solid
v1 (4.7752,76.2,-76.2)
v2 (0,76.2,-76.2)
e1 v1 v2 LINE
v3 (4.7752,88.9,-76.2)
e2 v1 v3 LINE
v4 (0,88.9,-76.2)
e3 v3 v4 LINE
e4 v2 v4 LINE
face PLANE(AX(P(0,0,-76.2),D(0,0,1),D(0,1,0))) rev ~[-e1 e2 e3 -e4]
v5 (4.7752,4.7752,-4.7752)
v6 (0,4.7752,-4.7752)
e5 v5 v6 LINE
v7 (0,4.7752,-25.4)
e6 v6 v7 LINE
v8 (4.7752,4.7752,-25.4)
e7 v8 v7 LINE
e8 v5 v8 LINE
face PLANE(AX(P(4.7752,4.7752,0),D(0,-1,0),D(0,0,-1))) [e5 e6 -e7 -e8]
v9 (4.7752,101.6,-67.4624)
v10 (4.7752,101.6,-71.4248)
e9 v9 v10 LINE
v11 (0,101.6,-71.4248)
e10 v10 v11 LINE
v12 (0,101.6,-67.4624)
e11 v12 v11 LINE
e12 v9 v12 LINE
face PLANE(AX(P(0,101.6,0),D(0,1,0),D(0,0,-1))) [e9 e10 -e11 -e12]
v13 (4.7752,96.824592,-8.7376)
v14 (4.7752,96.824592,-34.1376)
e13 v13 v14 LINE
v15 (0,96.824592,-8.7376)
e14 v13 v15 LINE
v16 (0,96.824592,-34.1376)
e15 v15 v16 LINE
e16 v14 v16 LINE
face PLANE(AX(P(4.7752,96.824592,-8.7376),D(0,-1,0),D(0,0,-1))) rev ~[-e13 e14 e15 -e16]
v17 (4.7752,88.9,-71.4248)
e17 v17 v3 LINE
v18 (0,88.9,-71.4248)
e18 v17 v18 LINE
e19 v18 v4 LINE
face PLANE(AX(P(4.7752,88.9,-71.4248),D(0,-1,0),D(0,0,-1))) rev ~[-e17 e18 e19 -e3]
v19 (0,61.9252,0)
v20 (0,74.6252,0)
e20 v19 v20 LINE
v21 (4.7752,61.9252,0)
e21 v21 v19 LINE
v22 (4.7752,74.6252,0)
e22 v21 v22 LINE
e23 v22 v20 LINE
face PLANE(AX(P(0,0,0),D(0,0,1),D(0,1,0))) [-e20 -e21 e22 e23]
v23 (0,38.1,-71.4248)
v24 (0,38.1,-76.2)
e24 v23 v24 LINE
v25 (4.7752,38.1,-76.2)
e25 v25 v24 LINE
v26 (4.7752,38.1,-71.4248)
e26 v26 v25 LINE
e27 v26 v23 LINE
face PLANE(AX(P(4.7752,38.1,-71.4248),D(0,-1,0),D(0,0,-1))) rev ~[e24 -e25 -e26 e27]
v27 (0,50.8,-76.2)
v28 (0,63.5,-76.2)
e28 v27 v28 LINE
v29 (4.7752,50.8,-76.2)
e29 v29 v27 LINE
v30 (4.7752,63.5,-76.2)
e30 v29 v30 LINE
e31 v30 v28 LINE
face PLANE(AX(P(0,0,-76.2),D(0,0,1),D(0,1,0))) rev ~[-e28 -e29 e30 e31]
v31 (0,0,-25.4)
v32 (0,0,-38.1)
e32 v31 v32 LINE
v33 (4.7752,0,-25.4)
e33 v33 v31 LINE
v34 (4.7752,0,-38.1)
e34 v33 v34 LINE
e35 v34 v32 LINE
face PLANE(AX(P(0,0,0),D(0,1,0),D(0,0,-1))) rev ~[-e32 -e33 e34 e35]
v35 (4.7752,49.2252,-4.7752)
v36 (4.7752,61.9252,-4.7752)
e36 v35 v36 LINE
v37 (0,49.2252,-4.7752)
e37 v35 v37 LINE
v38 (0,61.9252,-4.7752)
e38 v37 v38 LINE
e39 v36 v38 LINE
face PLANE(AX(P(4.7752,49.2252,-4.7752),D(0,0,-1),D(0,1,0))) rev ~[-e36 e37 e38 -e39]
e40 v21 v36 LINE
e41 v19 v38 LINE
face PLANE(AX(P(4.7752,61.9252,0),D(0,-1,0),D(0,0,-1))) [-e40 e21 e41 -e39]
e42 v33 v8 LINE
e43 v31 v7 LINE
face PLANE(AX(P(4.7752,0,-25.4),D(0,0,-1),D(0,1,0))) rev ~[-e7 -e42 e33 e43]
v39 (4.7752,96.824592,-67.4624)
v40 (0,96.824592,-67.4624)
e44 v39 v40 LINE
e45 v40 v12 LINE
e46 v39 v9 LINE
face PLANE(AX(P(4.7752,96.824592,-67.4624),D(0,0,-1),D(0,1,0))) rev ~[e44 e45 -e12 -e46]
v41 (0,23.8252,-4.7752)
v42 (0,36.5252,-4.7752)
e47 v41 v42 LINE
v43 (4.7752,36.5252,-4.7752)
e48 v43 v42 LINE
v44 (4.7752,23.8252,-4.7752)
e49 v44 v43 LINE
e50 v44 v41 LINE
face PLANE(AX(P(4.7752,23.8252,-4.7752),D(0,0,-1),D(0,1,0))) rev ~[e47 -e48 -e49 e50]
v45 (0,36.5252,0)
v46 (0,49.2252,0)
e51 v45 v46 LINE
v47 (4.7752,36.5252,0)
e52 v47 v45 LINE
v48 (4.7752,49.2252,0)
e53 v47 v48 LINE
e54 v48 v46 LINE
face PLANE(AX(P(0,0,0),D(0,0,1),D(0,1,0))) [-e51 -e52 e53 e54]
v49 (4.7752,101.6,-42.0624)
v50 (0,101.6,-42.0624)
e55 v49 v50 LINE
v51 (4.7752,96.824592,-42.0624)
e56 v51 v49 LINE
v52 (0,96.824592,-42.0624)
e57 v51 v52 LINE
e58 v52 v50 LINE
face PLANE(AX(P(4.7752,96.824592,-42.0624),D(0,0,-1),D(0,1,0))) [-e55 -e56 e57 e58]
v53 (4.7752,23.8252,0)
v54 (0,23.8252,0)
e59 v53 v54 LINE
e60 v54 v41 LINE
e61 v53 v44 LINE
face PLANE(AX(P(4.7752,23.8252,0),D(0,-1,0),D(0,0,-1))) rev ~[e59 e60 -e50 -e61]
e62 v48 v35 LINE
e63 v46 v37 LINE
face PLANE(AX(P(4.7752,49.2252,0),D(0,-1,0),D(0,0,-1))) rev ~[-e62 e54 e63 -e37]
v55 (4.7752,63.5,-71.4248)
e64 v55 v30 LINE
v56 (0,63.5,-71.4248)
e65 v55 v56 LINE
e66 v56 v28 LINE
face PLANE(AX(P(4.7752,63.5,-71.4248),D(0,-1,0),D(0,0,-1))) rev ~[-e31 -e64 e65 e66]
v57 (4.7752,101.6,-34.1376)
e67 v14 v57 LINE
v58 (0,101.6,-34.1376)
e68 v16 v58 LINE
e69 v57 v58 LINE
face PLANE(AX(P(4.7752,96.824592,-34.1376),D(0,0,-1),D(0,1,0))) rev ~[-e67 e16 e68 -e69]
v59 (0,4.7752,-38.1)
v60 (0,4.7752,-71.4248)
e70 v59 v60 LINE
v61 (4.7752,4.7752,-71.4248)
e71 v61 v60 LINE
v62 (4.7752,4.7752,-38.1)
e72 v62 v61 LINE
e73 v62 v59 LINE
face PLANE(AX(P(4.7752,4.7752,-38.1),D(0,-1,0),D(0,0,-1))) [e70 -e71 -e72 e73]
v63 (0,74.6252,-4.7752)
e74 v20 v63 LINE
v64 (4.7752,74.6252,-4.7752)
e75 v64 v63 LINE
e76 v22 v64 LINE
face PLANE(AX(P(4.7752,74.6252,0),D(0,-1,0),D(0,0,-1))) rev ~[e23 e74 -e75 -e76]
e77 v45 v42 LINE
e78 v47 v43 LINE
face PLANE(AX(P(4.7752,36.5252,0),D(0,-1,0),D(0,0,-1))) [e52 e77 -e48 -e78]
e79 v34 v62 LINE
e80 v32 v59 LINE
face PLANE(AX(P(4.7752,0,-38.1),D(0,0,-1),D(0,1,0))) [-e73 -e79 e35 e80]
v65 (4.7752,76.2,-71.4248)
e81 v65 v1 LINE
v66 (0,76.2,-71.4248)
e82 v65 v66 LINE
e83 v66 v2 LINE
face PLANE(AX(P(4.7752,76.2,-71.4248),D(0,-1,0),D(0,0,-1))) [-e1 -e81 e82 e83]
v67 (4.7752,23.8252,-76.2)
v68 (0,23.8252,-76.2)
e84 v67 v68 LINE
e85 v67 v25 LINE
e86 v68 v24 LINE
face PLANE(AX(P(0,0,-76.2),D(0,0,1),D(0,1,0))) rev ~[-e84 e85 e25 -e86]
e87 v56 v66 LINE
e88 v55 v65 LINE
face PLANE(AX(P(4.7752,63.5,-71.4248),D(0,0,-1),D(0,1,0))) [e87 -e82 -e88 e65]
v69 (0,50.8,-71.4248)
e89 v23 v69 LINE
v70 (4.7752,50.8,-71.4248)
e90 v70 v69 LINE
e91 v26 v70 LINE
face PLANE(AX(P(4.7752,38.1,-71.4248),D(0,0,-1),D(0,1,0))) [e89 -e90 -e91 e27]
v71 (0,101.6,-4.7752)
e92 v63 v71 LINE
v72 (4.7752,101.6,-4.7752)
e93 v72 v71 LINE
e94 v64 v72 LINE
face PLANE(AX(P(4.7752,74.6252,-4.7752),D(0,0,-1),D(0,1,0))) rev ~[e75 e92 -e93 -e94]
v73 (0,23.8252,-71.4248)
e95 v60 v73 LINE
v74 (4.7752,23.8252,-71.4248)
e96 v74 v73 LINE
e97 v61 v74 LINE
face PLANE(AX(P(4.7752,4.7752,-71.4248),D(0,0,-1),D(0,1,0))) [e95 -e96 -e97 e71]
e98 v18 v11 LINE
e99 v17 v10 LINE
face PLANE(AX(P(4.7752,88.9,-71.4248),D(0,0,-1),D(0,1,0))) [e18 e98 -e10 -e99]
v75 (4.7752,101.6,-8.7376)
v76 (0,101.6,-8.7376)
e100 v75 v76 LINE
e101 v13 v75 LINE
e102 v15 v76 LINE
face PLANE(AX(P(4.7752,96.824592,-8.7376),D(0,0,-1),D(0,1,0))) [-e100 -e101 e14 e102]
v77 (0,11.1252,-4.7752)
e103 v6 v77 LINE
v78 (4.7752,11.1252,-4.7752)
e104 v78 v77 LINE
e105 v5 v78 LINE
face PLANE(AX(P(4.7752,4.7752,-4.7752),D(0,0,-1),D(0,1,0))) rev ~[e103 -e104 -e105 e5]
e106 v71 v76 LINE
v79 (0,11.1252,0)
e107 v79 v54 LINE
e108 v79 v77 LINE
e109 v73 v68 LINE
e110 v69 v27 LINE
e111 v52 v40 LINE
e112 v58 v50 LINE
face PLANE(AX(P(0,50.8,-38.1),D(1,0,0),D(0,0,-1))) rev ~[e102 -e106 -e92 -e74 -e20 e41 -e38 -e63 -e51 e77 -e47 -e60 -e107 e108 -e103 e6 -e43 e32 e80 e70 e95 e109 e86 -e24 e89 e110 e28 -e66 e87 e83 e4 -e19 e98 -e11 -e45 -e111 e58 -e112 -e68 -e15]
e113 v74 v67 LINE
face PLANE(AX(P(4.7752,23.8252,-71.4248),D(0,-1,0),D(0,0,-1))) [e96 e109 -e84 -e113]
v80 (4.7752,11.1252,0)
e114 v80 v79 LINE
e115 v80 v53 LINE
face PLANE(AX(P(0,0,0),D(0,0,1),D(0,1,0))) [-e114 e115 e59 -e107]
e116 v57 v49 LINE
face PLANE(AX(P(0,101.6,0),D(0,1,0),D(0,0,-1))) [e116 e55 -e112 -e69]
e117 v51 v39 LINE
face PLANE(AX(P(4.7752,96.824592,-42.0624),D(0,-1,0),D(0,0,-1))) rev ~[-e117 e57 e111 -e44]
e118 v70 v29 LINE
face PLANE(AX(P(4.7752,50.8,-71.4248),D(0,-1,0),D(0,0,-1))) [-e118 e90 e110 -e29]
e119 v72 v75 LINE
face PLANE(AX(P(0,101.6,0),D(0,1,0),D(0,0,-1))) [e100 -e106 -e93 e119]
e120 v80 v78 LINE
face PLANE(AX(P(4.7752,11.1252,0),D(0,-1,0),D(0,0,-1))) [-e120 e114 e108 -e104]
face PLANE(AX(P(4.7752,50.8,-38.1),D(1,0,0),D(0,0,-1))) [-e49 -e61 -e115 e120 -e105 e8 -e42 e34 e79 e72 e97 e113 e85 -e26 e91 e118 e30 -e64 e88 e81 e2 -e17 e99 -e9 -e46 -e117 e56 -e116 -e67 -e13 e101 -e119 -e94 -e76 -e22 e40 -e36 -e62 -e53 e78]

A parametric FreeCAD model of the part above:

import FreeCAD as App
import Part
import Sketcher
from FreeCAD import Vector
Q = App.Units.Quantity

doc = App.newDocument("Part")
body = doc.addObject("PartDesign::Body", "Body")

sketch1 = body.newObject("Sketcher::SketchObject", "Sketch")
sketch1.AttachmentSupport = (doc.getObject("YZ_Plane"), [""])
sketch1.MapMode = "FlatFace"
sketch1.addGeometry([
    Part.LineSegment(Vector(102, 0, 0), Vector(0, 0, 0)),
    Part.LineSegment(Vector(0, 0, 0), Vector(0, -76, 0)),
    Part.LineSegment(Vector(0, -76, 0), Vector(102, -76, 0)),
    Part.LineSegment(Vector(102, -76, 0), Vector(102, 0, 0)),
], False)
sketch1.addConstraint([
    Sketcher.Constraint("Coincident", 0, 2, 1, 1),
    Sketcher.Constraint("Coincident", 1, 2, 2, 1),
    Sketcher.Constraint("Coincident", 2, 2, 3, 1),
    Sketcher.Constraint("Coincident", 3, 2, 0, 1),
    Sketcher.Constraint("Horizontal", 0),
    Sketcher.Constraint("Vertical", 1),
    Sketcher.Constraint("Horizontal", 2),
    Sketcher.Constraint("Vertical", 3),
    Sketcher.Constraint("Coincident", 0, 2, -1, 1),
    Sketcher.Constraint("DistanceX", 0, 2, 0, 1, Q("4 in")),
    Sketcher.Constraint("DistanceY", 1, 2, 1, 1, Q("3 in")),
])
pad1 = body.newObject("PartDesign::Pad", "Pad")
pad1.Profile = sketch1
pad1.Length = Q("0.188 in")

sketch2 = body.newObject("Sketcher::SketchObject", "Sketch001")
sketch2.AttachmentSupport = (doc.getObject("YZ_Plane"), [""])
sketch2.MapMode = "FlatFace"
sketch2.AttachmentOffset = App.Placement(Vector(0, 0, 0.188 * 25.4), App.Rotation())
sketch2.addGeometry([
    Part.LineSegment(Vector(4.8, 0, 0), Vector(0, 0, 0)),
    Part.LineSegment(Vector(0, 0, 0), Vector(0, -25.4, 0)),
    Part.LineSegment(Vector(0, -25.4, 0), Vector(4.8, -25.4, 0)),
    Part.LineSegment(Vector(4.8, -25.4, 0), Vector(4.8, 0, 0)),
    Part.LineSegment(Vector(4.8, -38.1, 0), Vector(0, -38.1, 0)),
    Part.LineSegment(Vector(0, -38.1, 0), Vector(0, -76.2, 0)),
    Part.LineSegment(Vector(0, -76.2, 0), Vector(4.8, -76.2, 0)),
    Part.LineSegment(Vector(4.8, -76.2, 0), Vector(4.8, -38.1, 0)),
], False)
sketch2.addConstraint([
    Sketcher.Constraint("Coincident", 0, 2, 1, 1),
    Sketcher.Constraint("Coincident", 1, 2, 2, 1),
    Sketcher.Constraint("Coincident", 2, 2, 3, 1),
    Sketcher.Constraint("Coincident", 3, 2, 0, 1),
    Sketcher.Constraint("Coincident", 4, 2, 5, 1),
    Sketcher.Constraint("Coincident", 5, 2, 6, 1),
    Sketcher.Constraint("Coincident", 6, 2, 7, 1),
    Sketcher.Constraint("Coincident", 7, 2, 4, 1),
    Sketcher.Constraint("Horizontal", 0),
    Sketcher.Constraint("Vertical", 1),
    Sketcher.Constraint("Horizontal", 2),
    Sketcher.Constraint("Vertical", 3),
    Sketcher.Constraint("Horizontal", 4),
    Sketcher.Constraint("Vertical", 5),
    Sketcher.Constraint("Horizontal", 6),
    Sketcher.Constraint("Vertical", 7),
    Sketcher.Constraint("Coincident", 0, 2, -1, 1),
    Sketcher.Constraint("PointOnObject", 4, 2, -2),
    Sketcher.Constraint("Vertical", 3, 2, 6, 2),
    Sketcher.Constraint("DistanceY", 1, 2, 1, 1, Q("1 in")),
    Sketcher.Constraint("DistanceY", 5, 2, 5, 1, Q("1.5 in")),
    Sketcher.Constraint("DistanceY", 5, 2, -1, 1, Q("3 in")),
    Sketcher.Constraint("DistanceX", 0, 2, 0, 1, Q("0.188 in")),
])
pocket1 = body.newObject("PartDesign::Pocket", "Pocket")
pocket1.Profile = sketch2
pocket1.Length = Q("0.25 in")

sketch3 = body.newObject("Sketcher::SketchObject", "Sketch002")
sketch3.AttachmentSupport = (doc.getObject("YZ_Plane"), [""])
sketch3.MapMode = "FlatFace"
sketch3.AttachmentOffset = App.Placement(Vector(0, 0, 0.188 * 25.4), App.Rotation())
sketch3.addGeometry([
    Part.LineSegment(Vector(101.6, 0, 0), Vector(74.6, 0, 0)),
    Part.LineSegment(Vector(74.6, 0, 0), Vector(74.6, -4.8, 0)),
    Part.LineSegment(Vector(74.6, -4.8, 0), Vector(101.6, -4.8, 0)),
    Part.LineSegment(Vector(101.6, -4.8, 0), Vector(101.6, 0, 0)),
    Part.LineSegment(Vector(101.6, -71.4, 0), Vector(88.9, -71.4, 0)),
    Part.LineSegment(Vector(88.9, -71.4, 0), Vector(88.9, -76.2, 0)),
    Part.LineSegment(Vector(88.9, -76.2, 0), Vector(101.6, -76.2, 0)),
    Part.LineSegment(Vector(101.6, -76.2, 0), Vector(101.6, -71.4, 0)),
    Part.LineSegment(Vector(76.2, -71.4, 0), Vector(63.5, -71.4, 0)),
    Part.LineSegment(Vector(63.5, -71.4, 0), Vector(63.5, -76.2, 0)),
    Part.LineSegment(Vector(63.5, -76.2, 0), Vector(76.2, -76.2, 0)),
    Part.LineSegment(Vector(76.2, -76.2, 0), Vector(76.2, -71.4, 0)),
    Part.LineSegment(Vector(11.1, 0, 0), Vector(4.8, 0, 0)),
    Part.LineSegment(Vector(4.8, 0, 0), Vector(4.8, -4.8, 0)),
    Part.LineSegment(Vector(4.8, -4.8, 0), Vector(11.1, -4.8, 0)),
    Part.LineSegment(Vector(11.1, -4.8, 0), Vector(11.1, 0, 0)),
    Part.LineSegment(Vector(23.8, -71.4, 0), Vector(4.8, -71.4, 0)),
    Part.LineSegment(Vector(4.8, -71.4, 0), Vector(4.8, -76.2, 0)),
    Part.LineSegment(Vector(4.8, -76.2, 0), Vector(23.8, -76.2, 0)),
    Part.LineSegment(Vector(23.8, -76.2, 0), Vector(23.8, -71.4, 0)),
    Part.LineSegment(Vector(50.8, -71.4, 0), Vector(38.1, -71.4, 0)),
    Part.LineSegment(Vector(38.1, -71.4, 0), Vector(38.1, -76.2, 0)),
    Part.LineSegment(Vector(38.1, -76.2, 0), Vector(50.8, -76.2, 0)),
    Part.LineSegment(Vector(50.8, -76.2, 0), Vector(50.8, -71.4, 0)),
    Part.LineSegment(Vector(61.9, 0, 0), Vector(49.2, 0, 0)),
    Part.LineSegment(Vector(49.2, 0, 0), Vector(49.2, -4.8, 0)),
    Part.LineSegment(Vector(49.2, -4.8, 0), Vector(61.9, -4.8, 0)),
    Part.LineSegment(Vector(61.9, -4.8, 0), Vector(61.9, 0, 0)),
    Part.LineSegment(Vector(36.5, 0, 0), Vector(23.8, 0, 0)),
    Part.LineSegment(Vector(23.8, 0, 0), Vector(23.8, -4.8, 0)),
    Part.LineSegment(Vector(23.8, -4.8, 0), Vector(36.5, -4.8, 0)),
    Part.LineSegment(Vector(36.5, -4.8, 0), Vector(36.5, 0, 0)),
], False)
sketch3.addConstraint([
    Sketcher.Constraint("Coincident", 0, 2, 1, 1),
    Sketcher.Constraint("Coincident", 1, 2, 2, 1),
    Sketcher.Constraint("Coincident", 2, 2, 3, 1),
    Sketcher.Constraint("Coincident", 3, 2, 0, 1),
    Sketcher.Constraint("Coincident", 4, 2, 5, 1),
    Sketcher.Constraint("Coincident", 5, 2, 6, 1),
    Sketcher.Constraint("Coincident", 6, 2, 7, 1),
    Sketcher.Constraint("Coincident", 7, 2, 4, 1),
    Sketcher.Constraint("Coincident", 8, 2, 9, 1),
    Sketcher.Constraint("Coincident", 9, 2, 10, 1),
    Sketcher.Constraint("Coincident", 10, 2, 11, 1),
    Sketcher.Constraint("Coincident", 11, 2, 8, 1),
    Sketcher.Constraint("Coincident", 12, 2, 13, 1),
    Sketcher.Constraint("Coincident", 13, 2, 14, 1),
    Sketcher.Constraint("Coincident", 14, 2, 15, 1),
    Sketcher.Constraint("Coincident", 15, 2, 12, 1),
    Sketcher.Constraint("Coincident", 16, 2, 17, 1),
    Sketcher.Constraint("Coincident", 17, 2, 18, 1),
    Sketcher.Constraint("Coincident", 18, 2, 19, 1),
    Sketcher.Constraint("Coincident", 19, 2, 16, 1),
    Sketcher.Constraint("Coincident", 20, 2, 21, 1),
    Sketcher.Constraint("Coincident", 21, 2, 22, 1),
    Sketcher.Constraint("Coincident", 22, 2, 23, 1),
    Sketcher.Constraint("Coincident", 23, 2, 20, 1),
    Sketcher.Constraint("Coincident", 24, 2, 25, 1),
    Sketcher.Constraint("Coincident", 25, 2, 26, 1),
    Sketcher.Constraint("Coincident", 26, 2, 27, 1),
    Sketcher.Constraint("Coincident", 27, 2, 24, 1),
    Sketcher.Constraint("Coincident", 28, 2, 29, 1),
    Sketcher.Constraint("Coincident", 29, 2, 30, 1),
    Sketcher.Constraint("Coincident", 30, 2, 31, 1),
    Sketcher.Constraint("Coincident", 31, 2, 28, 1),
    Sketcher.Constraint("Horizontal", 0),
    Sketcher.Constraint("Vertical", 1),
    Sketcher.Constraint("Horizontal", 2),
    Sketcher.Constraint("Vertical", 3),
    Sketcher.Constraint("Horizontal", 4),
    Sketcher.Constraint("Vertical", 5),
    Sketcher.Constraint("Horizontal", 6),
    Sketcher.Constraint("Vertical", 7),
    Sketcher.Constraint("Horizontal", 8),
    Sketcher.Constraint("Vertical", 9),
    Sketcher.Constraint("Horizontal", 10),
    Sketcher.Constraint("Vertical", 11),
    Sketcher.Constraint("Horizontal", 12),
    Sketcher.Constraint("Vertical", 13),
    Sketcher.Constraint("Horizontal", 14),
    Sketcher.Constraint("Vertical", 15),
    Sketcher.Constraint("Horizontal", 16),
    Sketcher.Constraint("Vertical", 17),
    Sketcher.Constraint("Horizontal", 18),
    Sketcher.Constraint("Vertical", 19),
    Sketcher.Constraint("Horizontal", 20),
    Sketcher.Constraint("Vertical", 21),
    Sketcher.Constraint("Horizontal", 22),
    Sketcher.Constraint("Vertical", 23),
    Sketcher.Constraint("Horizontal", 24),
    Sketcher.Constraint("Vertical", 25),
    Sketcher.Constraint("Horizontal", 26),
    Sketcher.Constraint("Vertical", 27),
    Sketcher.Constraint("Horizontal", 28),
    Sketcher.Constraint("Vertical", 29),
    Sketcher.Constraint("Horizontal", 30),
    Sketcher.Constraint("Vertical", 31),
    Sketcher.Constraint("PointOnObject", 0, 2, -1),
    Sketcher.Constraint("PointOnObject", 12, 2, -1),
    Sketcher.Constraint("PointOnObject", 24, 2, -1),
    Sketcher.Constraint("PointOnObject", 28, 2, -1),
    Sketcher.Constraint("Horizontal", 7, 2, 8, 2),
    Sketcher.Constraint("Horizontal", 6, 2, 9, 2),
    Sketcher.Constraint("Horizontal", 2, 2, 13, 2),
    Sketcher.Constraint("Horizontal", 11, 2, 16, 2),
    Sketcher.Constraint("Horizontal", 10, 2, 17, 2),
    Sketcher.Constraint("Horizontal", 19, 2, 20, 2),
    Sketcher.Constraint("Horizontal", 18, 2, 21, 2),
    Sketcher.Constraint("Horizontal", 14, 2, 25, 2),
    Sketcher.Constraint("Horizontal", 26, 2, 29, 2),
    Sketcher.Constraint("Vertical", 3, 2, 6, 2),
    Sketcher.Constraint("Vertical", 13, 2, 16, 2),
    Sketcher.Constraint("Vertical", 19, 2, 28, 2),
    Sketcher.Constraint("Equal", 6, 8),
    Sketcher.Constraint("Equal", 10, 20),
    Sketcher.Constraint("Equal", 22, 24),
    Sketcher.Constraint("Equal", 26, 28),
    Sketcher.Constraint("Equal", 3, 5),
    Sketcher.Constraint("DistanceX", 4, 2, 4, 1, Q("0.5 in")),
    Sketcher.Constraint("DistanceX", -1, 1, 2, 2, Q("4 in")),
    Sketcher.Constraint("DistanceY", 5, 2, -1, 1, Q("3 in")),
    Sketcher.Constraint("DistanceX", -1, 1, 10, 2, Q("3 in")),
    Sketcher.Constraint("DistanceX", -1, 1, 22, 2, Q("2 in")),
    Sketcher.Constraint("DistanceX", 24, 2, 0, 2, Q("1 in")),
    Sketcher.Constraint("DistanceX", 28, 2, 24, 2, Q("1 in")),
    Sketcher.Constraint("DistanceX", 14, 2, 30, 2, Q("1 in")),
    Sketcher.Constraint("DistanceX", 12, 2, 12, 1, Q("0.25 in")),
    Sketcher.Constraint("DistanceX", 0, 2, 0, 1, Q("1.062 in")),
    Sketcher.Constraint("DistanceY", 1, 2, 1, 1, Q("0.188 in")),
])
pocket2 = body.newObject("PartDesign::Pocket", "Pocket001")
pocket2.Profile = sketch3
pocket2.Length = Q("0.25 in")

sketch4 = body.newObject("Sketcher::SketchObject", "Sketch003")
sketch4.AttachmentSupport = (doc.getObject("YZ_Plane"), [""])
sketch4.MapMode = "FlatFace"
sketch4.AttachmentOffset = App.Placement(Vector(0, 0, 0.188 * 25.4), App.Rotation())
sketch4.addGeometry([
    Part.LineSegment(Vector(96.8, -34.1, 0), Vector(101.6, -34.1, 0)),
    Part.LineSegment(Vector(101.6, -34.1, 0), Vector(101.6, -8.7, 0)),
    Part.LineSegment(Vector(101.6, -8.7, 0), Vector(96.8, -8.7, 0)),
    Part.LineSegment(Vector(96.8, -8.7, 0), Vector(96.8, -34.1, 0)),
    Part.LineSegment(Vector(101.6, -42.1, 0), Vector(96.8, -42.1, 0)),
    Part.LineSegment(Vector(96.8, -42.1, 0), Vector(96.8, -67.5, 0)),
    Part.LineSegment(Vector(96.8, -67.5, 0), Vector(101.6, -67.5, 0)),
    Part.LineSegment(Vector(101.6, -67.5, 0), Vector(101.6, -42.1, 0)),
], False)
sketch4.addConstraint([
    Sketcher.Constraint("Coincident", 0, 2, 1, 1),
    Sketcher.Constraint("Coincident", 1, 2, 2, 1),
    Sketcher.Constraint("Coincident", 2, 2, 3, 1),
    Sketcher.Constraint("Coincident", 3, 2, 0, 1),
    Sketcher.Constraint("Coincident", 4, 2, 5, 1),
    Sketcher.Constraint("Coincident", 5, 2, 6, 1),
    Sketcher.Constraint("Coincident", 6, 2, 7, 1),
    Sketcher.Constraint("Coincident", 7, 2, 4, 1),
    Sketcher.Constraint("Horizontal", 0),
    Sketcher.Constraint("Vertical", 1),
    Sketcher.Constraint("Horizontal", 2),
    Sketcher.Constraint("Vertical", 3),
    Sketcher.Constraint("Horizontal", 4),
    Sketcher.Constraint("Vertical", 5),
    Sketcher.Constraint("Horizontal", 6),
    Sketcher.Constraint("Vertical", 7),
    Sketcher.Constraint("Vertical", 3, 2, 4, 2),
    Sketcher.Constraint("Vertical", 1, 2, 6, 2),
    Sketcher.Constraint("Equal", 3, 5),
    Sketcher.Constraint("DistanceY", 1, 1, 1, 2, Q("1 in")),
    Sketcher.Constraint("DistanceX", -1, 1, 0, 2, Q("4 in")),
    Sketcher.Constraint("DistanceY", 0, 2, -1, 1, Q("1.344 in")),
    Sketcher.Constraint("DistanceY", 4, 2, -1, 1, Q("1.656 in")),
    Sketcher.Constraint("DistanceX", 0, 1, 0, 2, 4.775408),
])
pocket3 = body.newObject("PartDesign::Pocket", "Pocket002")
pocket3.Profile = sketch4
pocket3.Length = Q("0.188 in")

doc.recompute()
